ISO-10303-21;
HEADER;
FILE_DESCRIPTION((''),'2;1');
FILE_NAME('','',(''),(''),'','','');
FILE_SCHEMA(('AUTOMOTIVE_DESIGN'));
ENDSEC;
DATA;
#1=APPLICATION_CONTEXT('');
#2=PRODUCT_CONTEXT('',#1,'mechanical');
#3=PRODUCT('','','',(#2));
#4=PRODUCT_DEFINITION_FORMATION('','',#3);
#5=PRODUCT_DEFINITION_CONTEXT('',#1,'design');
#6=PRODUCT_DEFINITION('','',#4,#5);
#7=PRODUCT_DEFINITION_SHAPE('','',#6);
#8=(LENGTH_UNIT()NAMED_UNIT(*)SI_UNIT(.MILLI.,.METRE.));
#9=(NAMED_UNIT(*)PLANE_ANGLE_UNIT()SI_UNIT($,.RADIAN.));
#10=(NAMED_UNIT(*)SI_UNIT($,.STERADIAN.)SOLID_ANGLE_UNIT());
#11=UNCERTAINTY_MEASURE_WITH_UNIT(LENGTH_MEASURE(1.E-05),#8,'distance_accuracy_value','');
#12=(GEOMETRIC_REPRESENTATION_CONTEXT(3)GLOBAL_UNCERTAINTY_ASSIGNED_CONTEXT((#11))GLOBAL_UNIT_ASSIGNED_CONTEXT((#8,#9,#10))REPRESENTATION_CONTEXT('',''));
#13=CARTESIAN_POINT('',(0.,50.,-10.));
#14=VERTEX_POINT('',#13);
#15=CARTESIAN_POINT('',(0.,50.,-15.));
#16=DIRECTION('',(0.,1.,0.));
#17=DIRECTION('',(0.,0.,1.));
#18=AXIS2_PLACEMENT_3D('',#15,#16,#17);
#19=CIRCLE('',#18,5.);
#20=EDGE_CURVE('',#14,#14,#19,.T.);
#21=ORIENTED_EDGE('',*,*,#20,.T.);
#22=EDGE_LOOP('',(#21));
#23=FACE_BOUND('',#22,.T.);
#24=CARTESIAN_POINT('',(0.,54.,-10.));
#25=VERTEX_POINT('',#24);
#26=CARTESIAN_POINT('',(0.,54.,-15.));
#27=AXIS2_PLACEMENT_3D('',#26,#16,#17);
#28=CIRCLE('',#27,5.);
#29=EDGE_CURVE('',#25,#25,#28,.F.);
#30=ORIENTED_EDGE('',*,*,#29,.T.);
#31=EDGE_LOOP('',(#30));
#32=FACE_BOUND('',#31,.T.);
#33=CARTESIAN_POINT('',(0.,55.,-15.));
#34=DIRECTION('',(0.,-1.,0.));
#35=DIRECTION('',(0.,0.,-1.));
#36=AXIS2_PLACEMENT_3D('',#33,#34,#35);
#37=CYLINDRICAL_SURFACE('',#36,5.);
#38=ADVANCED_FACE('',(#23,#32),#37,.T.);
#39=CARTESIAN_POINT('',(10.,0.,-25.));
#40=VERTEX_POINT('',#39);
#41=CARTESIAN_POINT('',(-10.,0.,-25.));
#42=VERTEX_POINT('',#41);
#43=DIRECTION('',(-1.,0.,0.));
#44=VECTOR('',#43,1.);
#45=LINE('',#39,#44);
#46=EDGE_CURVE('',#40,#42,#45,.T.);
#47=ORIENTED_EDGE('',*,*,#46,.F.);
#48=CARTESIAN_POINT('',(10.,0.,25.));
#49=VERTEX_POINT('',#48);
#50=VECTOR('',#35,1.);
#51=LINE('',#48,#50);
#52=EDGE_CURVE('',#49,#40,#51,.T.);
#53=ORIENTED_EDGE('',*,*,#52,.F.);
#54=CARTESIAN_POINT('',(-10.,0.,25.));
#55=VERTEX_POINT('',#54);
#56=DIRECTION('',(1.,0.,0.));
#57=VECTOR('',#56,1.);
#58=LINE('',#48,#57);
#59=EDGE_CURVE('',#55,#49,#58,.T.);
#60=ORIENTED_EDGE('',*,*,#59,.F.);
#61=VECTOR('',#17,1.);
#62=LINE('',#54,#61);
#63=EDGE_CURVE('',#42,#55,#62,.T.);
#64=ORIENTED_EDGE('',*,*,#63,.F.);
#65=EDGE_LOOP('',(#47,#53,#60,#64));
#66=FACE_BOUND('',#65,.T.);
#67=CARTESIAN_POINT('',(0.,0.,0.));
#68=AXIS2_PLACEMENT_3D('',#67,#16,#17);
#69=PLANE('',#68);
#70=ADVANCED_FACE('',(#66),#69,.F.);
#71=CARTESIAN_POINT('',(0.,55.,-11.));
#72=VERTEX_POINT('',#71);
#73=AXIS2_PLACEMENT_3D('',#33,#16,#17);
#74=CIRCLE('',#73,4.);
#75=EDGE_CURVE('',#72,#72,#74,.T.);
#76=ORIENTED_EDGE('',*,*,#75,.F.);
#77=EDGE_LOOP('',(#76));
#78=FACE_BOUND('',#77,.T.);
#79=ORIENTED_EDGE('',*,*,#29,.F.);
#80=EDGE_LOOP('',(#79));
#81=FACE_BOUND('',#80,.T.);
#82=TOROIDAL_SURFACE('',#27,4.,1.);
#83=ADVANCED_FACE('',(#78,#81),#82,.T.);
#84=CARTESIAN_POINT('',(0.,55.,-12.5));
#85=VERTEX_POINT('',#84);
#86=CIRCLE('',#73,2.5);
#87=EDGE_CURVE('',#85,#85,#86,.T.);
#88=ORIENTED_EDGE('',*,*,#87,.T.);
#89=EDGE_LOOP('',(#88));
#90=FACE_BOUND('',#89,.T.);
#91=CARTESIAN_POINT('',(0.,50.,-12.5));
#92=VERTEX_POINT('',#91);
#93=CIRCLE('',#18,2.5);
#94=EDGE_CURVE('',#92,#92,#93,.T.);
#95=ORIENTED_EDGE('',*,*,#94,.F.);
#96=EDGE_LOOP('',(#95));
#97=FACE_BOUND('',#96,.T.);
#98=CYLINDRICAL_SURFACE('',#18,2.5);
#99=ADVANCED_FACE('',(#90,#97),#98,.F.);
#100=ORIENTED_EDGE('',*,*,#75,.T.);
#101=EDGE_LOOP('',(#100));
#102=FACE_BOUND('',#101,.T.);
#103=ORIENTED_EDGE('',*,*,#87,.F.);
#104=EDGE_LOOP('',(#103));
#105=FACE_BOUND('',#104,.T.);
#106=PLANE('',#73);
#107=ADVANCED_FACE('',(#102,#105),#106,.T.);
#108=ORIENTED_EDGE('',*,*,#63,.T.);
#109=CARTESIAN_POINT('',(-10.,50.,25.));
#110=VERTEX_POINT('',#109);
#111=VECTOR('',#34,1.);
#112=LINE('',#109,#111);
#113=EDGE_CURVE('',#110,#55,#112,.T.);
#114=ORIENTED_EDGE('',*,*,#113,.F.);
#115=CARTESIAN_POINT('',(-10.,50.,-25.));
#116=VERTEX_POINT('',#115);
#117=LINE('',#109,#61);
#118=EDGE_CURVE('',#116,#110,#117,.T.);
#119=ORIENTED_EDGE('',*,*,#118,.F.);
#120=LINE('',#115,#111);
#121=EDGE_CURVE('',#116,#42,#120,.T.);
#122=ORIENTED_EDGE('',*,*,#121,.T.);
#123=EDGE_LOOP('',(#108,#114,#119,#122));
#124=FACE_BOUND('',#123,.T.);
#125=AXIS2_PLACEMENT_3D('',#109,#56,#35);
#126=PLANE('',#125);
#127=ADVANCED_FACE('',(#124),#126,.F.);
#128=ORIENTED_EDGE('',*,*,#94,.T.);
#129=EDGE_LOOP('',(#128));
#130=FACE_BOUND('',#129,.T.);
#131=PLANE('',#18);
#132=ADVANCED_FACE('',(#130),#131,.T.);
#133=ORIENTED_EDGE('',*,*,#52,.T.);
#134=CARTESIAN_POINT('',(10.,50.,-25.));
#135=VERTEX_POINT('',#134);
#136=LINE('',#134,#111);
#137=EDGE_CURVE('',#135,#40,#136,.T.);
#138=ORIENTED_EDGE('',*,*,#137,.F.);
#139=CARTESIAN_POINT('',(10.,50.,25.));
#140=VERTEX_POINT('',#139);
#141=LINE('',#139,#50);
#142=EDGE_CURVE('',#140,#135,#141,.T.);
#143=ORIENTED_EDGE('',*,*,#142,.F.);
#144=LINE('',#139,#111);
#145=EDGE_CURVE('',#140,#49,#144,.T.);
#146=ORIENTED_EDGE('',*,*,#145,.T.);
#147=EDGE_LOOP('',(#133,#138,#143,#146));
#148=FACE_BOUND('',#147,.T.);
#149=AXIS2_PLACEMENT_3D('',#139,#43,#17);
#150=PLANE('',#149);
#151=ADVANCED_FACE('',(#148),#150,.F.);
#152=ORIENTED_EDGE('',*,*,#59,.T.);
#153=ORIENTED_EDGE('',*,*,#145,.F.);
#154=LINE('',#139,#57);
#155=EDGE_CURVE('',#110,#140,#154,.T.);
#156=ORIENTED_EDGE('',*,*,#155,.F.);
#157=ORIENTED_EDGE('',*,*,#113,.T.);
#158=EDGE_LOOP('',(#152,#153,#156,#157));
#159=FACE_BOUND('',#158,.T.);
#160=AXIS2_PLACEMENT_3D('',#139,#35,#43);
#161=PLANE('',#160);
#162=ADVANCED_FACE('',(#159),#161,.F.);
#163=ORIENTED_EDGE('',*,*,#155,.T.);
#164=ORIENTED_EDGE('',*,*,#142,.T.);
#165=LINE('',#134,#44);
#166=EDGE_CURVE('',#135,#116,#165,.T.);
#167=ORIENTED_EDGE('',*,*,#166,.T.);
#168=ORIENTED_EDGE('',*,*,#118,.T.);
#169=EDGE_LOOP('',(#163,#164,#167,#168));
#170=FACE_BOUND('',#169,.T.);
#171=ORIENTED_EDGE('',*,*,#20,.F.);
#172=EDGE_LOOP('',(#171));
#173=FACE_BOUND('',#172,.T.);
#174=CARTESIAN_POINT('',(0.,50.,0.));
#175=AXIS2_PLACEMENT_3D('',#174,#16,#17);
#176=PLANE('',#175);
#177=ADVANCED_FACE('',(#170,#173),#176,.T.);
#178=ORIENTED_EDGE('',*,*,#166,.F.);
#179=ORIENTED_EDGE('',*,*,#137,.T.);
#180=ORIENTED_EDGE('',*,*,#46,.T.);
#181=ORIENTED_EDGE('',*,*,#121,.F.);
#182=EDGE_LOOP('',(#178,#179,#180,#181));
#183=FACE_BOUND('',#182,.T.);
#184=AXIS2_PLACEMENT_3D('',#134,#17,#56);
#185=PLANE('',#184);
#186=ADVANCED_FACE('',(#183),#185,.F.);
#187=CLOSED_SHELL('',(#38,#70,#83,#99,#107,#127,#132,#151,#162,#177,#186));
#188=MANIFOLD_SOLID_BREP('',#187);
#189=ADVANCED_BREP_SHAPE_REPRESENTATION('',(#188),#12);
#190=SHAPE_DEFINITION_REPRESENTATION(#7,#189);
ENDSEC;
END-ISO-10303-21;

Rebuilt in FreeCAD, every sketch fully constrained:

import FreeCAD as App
import Part
import Sketcher
from FreeCAD import Vector


def edges_at(feature, points):
    """Names of the edges that pass closest to the given points."""
    edges = feature.Shape.Edges
    near = lambda p: min(range(len(edges)), key=lambda i: edges[i].distToShape(Part.Vertex(*p))[0])
    return sorted({f"Edge{near(p) + 1}" for p in points})


def add_polygon(sketch, points):
    """Adds a closed chain of lines whose ends are joined by coincident constraints."""
    first, n = sketch.GeometryCount, len(points)
    for a, b in zip(points, points[1:] + points[:1]):
        sketch.addGeometry(Part.LineSegment(App.Vector(*a, 0), App.Vector(*b, 0)), False)
    for i in range(n):
        sketch.addConstraint(Sketcher.Constraint("Coincident", first + i, 2, first + (i + 1) % n, 1))

doc = App.newDocument("Part")
params = doc.addObject("Spreadsheet::Sheet", "Params")
for row, (alias, value) in enumerate([
    ("sketch1_width", "20 mm"),
    ("sketch1_height", "50 mm"),
    ("pad1_length", "50 mm"),
    ("sketch2_diameter", "10 mm"),
    ("pad2_length", "5 mm"),
    ("sketch3_diameter", "5 mm"),
    ("pocket1_length", "5 mm"),
    ("fillet_radius", "1 mm"),
], start=1):
    params.set(f"A{row}", alias)
    params.set(f"B{row}", "=" + value)
    params.setAlias(f"B{row}", alias)

body = doc.addObject("PartDesign::Body", "Body")

# Sketch on XZ plane
sketch1 = body.newObject("Sketcher::SketchObject", "Sketch")
sketch1.AttachmentSupport = (doc.getObject("XZ_Plane"), [""])
sketch1.MapMode = "FlatFace"
add_polygon(sketch1, [(-10, -25), (-10, 25), (10, 25), (10, -25)])  # lines 0-3
sketch1.addConstraint([
    Sketcher.Constraint("Vertical", 0),
    Sketcher.Constraint("Horizontal", 1),
    Sketcher.Constraint("Vertical", 2),
    Sketcher.Constraint("Horizontal", 3),
    Sketcher.Constraint("Symmetric", 0, 2, 2, 2, -1, 1),
    Sketcher.Constraint("DistanceX", 1, 1, 1, 2, 20.0),
    Sketcher.Constraint("DistanceY", 0, 1, 0, 2, 50.0),
])
sketch1.setExpression("Constraints[9]", "Params.sketch1_width")
sketch1.setExpression("Constraints[10]", "Params.sketch1_height")
pad1 = body.newObject("PartDesign::Pad", "Pad")
pad1.Profile = sketch1
pad1.setExpression("Length", "Params.pad1_length")
pad1.Reversed = True

# Sketch on XZ plane
sketch2 = body.newObject("Sketcher::SketchObject", "Sketch001")
sketch2.AttachmentSupport = (doc.getObject("XZ_Plane"), [""])
sketch2.MapMode = "FlatFace"
sketch2.AttachmentOffset = App.Placement(Vector(0, 0, -50), App.Rotation())
sketch2.addGeometry(Part.Circle(Vector(0, -15, 0), Vector(0, 0, 1), 5), False)
sketch2.addConstraint([
    Sketcher.Constraint("PointOnObject", 0, 3, -2),
    Sketcher.Constraint("Diameter", 0, 10.0),
    Sketcher.Constraint("DistanceY", 0, 3, -1, 1, 15.0),
])
sketch2.setExpression("Constraints[1]", "Params.sketch2_diameter")
pad2 = body.newObject("PartDesign::Pad", "Pad001")
pad2.Profile = sketch2
pad2.setExpression("Length", "Params.pad2_length")
pad2.Reversed = True

# Sketch on XZ plane
sketch3 = body.newObject("Sketcher::SketchObject", "Sketch002")
sketch3.AttachmentSupport = (doc.getObject("XZ_Plane"), [""])
sketch3.MapMode = "FlatFace"
sketch3.AttachmentOffset = App.Placement(Vector(0, 0, -55), App.Rotation())
sketch3.addGeometry(Part.Circle(Vector(0, -15, 0), Vector(0, 0, 1), 2.5), False)
sketch3.addConstraint([
    Sketcher.Constraint("PointOnObject", 0, 3, -2),
    Sketcher.Constraint("Diameter", 0, 5.0),
    Sketcher.Constraint("DistanceY", 0, 3, -1, 1, 15.0),
])
sketch3.setExpression("Constraints[1]", "Params.sketch3_diameter")
pocket1 = body.newObject("PartDesign::Pocket", "Pocket")
pocket1.Profile = sketch3
pocket1.setExpression("Length", "Params.pocket1_length")
pocket1.Reversed = True
doc.recompute()

fillet = body.newObject("PartDesign::Fillet", "Fillet")
fillet.Base = (pocket1, edges_at(pocket1, [(0, 55, -20)]))
fillet.setExpression("Radius", "Params.fillet_radius")

doc.recompute()
